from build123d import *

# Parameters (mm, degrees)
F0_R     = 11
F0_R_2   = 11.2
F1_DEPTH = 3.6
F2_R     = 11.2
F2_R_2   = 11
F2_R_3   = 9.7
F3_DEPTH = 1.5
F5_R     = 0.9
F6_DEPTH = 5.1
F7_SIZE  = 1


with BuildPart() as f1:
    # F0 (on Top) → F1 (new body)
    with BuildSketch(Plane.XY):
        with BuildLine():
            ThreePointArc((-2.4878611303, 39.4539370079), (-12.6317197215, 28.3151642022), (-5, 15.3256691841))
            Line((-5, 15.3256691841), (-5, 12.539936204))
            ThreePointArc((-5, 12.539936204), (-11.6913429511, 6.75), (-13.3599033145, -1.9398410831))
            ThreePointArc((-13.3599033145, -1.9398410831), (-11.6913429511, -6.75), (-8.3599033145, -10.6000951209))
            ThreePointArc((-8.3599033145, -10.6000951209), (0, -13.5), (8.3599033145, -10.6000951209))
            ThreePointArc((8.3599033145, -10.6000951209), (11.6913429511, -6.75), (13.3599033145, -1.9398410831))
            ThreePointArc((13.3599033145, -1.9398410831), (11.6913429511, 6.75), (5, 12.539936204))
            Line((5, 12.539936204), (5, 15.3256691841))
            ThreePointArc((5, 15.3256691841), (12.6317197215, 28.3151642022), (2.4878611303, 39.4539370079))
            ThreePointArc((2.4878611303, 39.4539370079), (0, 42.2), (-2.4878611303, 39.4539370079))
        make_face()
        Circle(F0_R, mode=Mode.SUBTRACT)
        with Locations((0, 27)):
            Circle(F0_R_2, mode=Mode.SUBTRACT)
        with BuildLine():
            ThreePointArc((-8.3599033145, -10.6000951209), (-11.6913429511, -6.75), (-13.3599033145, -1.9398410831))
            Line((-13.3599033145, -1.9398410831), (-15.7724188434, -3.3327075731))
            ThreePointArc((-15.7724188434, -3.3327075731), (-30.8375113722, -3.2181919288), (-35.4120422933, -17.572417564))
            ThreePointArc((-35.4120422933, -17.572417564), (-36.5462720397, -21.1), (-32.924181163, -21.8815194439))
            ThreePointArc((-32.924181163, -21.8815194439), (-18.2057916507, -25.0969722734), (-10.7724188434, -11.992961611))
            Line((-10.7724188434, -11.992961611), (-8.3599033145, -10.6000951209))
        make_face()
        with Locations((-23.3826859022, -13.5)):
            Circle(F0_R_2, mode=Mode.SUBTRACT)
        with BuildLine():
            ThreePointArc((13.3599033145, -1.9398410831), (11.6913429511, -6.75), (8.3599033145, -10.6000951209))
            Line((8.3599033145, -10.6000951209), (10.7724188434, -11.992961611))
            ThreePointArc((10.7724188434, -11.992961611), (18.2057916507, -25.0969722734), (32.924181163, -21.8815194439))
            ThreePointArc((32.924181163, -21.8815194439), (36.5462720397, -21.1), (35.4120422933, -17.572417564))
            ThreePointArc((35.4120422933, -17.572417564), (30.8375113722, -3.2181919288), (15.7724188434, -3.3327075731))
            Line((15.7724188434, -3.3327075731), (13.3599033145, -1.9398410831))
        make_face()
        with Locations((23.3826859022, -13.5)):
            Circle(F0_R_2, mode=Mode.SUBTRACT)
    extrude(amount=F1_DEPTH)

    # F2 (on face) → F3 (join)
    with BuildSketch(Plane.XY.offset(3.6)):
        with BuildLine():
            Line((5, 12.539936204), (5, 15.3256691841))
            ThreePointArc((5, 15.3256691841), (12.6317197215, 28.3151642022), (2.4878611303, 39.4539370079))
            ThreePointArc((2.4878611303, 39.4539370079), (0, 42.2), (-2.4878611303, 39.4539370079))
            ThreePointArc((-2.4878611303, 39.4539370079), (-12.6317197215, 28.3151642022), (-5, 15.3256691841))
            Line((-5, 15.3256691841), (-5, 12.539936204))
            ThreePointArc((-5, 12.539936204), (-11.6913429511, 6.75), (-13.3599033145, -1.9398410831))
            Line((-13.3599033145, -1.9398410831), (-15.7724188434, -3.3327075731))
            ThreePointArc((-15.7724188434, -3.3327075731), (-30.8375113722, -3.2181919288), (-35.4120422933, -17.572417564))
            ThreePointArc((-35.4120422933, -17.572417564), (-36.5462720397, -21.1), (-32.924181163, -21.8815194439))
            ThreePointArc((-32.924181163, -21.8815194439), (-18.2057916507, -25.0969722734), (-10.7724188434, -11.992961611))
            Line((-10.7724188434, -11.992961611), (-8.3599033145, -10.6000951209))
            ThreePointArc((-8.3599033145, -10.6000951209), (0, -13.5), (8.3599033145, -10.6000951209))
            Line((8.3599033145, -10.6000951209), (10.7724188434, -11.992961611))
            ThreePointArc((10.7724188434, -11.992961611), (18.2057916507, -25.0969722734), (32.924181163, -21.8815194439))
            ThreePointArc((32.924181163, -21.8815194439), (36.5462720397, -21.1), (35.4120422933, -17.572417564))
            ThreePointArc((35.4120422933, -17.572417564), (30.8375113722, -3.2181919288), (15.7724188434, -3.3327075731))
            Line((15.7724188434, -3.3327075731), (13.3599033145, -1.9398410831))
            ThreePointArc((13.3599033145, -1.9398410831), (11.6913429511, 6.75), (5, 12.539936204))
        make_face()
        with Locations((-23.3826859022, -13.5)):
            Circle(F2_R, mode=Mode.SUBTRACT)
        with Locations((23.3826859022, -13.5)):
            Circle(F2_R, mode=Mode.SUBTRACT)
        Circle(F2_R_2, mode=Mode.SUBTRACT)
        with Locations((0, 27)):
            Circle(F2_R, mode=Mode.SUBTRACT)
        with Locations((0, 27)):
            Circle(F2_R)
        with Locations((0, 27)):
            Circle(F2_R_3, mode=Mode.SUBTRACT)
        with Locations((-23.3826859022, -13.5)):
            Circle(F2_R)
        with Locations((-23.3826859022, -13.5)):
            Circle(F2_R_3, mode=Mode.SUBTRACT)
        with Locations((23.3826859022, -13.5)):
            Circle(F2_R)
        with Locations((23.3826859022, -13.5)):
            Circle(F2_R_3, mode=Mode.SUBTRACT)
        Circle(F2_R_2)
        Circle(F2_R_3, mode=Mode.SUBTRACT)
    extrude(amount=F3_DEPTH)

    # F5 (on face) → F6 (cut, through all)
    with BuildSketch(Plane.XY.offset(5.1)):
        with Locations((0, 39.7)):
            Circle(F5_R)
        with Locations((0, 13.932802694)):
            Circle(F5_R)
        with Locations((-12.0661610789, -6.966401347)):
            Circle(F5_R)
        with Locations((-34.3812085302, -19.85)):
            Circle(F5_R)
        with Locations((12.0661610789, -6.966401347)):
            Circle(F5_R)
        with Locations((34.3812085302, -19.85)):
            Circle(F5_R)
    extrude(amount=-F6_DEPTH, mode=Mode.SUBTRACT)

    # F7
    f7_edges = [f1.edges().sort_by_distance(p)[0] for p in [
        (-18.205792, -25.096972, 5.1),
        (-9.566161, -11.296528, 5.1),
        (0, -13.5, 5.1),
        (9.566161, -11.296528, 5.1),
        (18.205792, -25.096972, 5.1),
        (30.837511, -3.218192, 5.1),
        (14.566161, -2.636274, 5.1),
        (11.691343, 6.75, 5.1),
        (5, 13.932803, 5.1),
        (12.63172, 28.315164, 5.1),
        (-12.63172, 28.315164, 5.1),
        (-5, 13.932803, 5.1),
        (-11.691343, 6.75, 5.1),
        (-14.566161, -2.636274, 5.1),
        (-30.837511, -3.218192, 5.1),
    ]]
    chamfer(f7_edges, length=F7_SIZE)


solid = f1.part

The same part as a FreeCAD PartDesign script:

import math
import FreeCAD as App
import Part
import Sketcher
from FreeCAD import Vector
Q = App.Units.Quantity


def edges_at(feature, points):
    """Names of the edges that pass closest to the given points."""
    edges = feature.Shape.Edges
    near = lambda p: min(range(len(edges)), key=lambda i: edges[i].distToShape(Part.Vertex(*p))[0])
    return sorted({f"Edge{near(p) + 1}" for p in points})

doc = App.newDocument("Part")
body = doc.addObject("PartDesign::Body", "Body")

# Sketch on XY plane
sketch1 = doc.addObject("Sketcher::SketchObject", "Sketch")
body.addObject(sketch1)
sketch1.AttachmentSupport = (doc.XY_Plane, [""])
sketch1.MapMode = "FlatFace"
sketch1.addGeometry([
    Part.ArcOfCircle(Part.Circle(Vector(0, 27, 0), Vector(0, 0, 1), 12.7), math.radians(101), math.radians(247)),  # 0
    Part.LineSegment(Vector(-5, 15.3, 0), Vector(-5, 12.5, 0)),  # 1
    Part.ArcOfCircle(Part.Circle(Vector(0, 0, 0), Vector(0, 0, 1), 13.5), math.radians(112), math.radians(188)),  # 2
    Part.LineSegment(Vector(-13.4, -1.9, 0), Vector(-15.8, -3.3, 0)),  # 3
    Part.ArcOfCircle(Part.Circle(Vector(-23.4, -13.5, 0), Vector(0, 0, 1), 12.7), math.radians(53), math.radians(199)),  # 4
    Part.ArcOfCircle(Part.Circle(Vector(-34.4, -19.9, 0), Vector(0, 0, 1), 2.5), math.radians(114), math.radians(306)),  # 5
    Part.ArcOfCircle(Part.Circle(Vector(-23.4, -13.5, 0), Vector(0, 0, 1), 12.7), math.radians(-139), math.radians(7)),  # 6
    Part.LineSegment(Vector(-10.8, -12, 0), Vector(-8.4, -10.6, 0)),  # 7
    Part.ArcOfCircle(Part.Circle(Vector(0, 0, 0), Vector(0, 0, 1), 13.5), math.radians(-128), math.radians(-52)),  # 8
    Part.LineSegment(Vector(8.4, -10.6, 0), Vector(10.8, -12, 0)),  # 9
    Part.ArcOfCircle(Part.Circle(Vector(23.4, -13.5, 0), Vector(0, 0, 1), 12.7), math.radians(173), math.radians(319)),  # 10
    Part.ArcOfCircle(Part.Circle(Vector(34.4, -19.9, 0), Vector(0, 0, 1), 2.5), math.radians(-126), math.radians(66)),  # 11
    Part.ArcOfCircle(Part.Circle(Vector(23.4, -13.5, 0), Vector(0, 0, 1), 12.7), math.radians(-19), math.radians(127)),  # 12
    Part.LineSegment(Vector(15.8, -3.3, 0), Vector(13.4, -1.9, 0)),  # 13
    Part.ArcOfCircle(Part.Circle(Vector(0, 0, 0), Vector(0, 0, 1), 13.5), math.radians(-8), math.radians(68)),  # 14
    Part.LineSegment(Vector(5, 12.5, 0), Vector(5, 15.3, 0)),  # 15
    Part.ArcOfCircle(Part.Circle(Vector(0, 27, 0), Vector(0, 0, 1), 12.7), math.radians(-67), math.radians(79)),  # 16
    Part.ArcOfCircle(Part.Circle(Vector(0, 39.7, 0), Vector(0, 0, 1), 2.5), math.radians(-6), math.radians(186)),  # 17
    Part.Circle(Vector(-23.4, -13.5, 0), Vector(0, 0, 1), 11.2),  # 18
    Part.Circle(Vector(23.4, -13.5, 0), Vector(0, 0, 1), 11.2),  # 19
    Part.Circle(Vector(0, 0, 0), Vector(0, 0, 1), 11),  # 20
    Part.Circle(Vector(0, 27, 0), Vector(0, 0, 1), 11.2),  # 21
], False)
sketch1.addConstraint([
    Sketcher.Constraint("Coincident", 0, 2, 1, 1),
    Sketcher.Constraint("Coincident", 1, 2, 2, 1),
    Sketcher.Constraint("Coincident", 2, 2, 3, 1),
    Sketcher.Constraint("Coincident", 3, 2, 4, 1),
    Sketcher.Constraint("Coincident", 4, 2, 5, 1),
    Sketcher.Constraint("Coincident", 5, 2, 6, 1),
    Sketcher.Constraint("Coincident", 6, 2, 7, 1),
    Sketcher.Constraint("Coincident", 7, 2, 8, 1),
    Sketcher.Constraint("Coincident", 8, 2, 9, 1),
    Sketcher.Constraint("Coincident", 9, 2, 10, 1),
    Sketcher.Constraint("Coincident", 10, 2, 11, 1),
    Sketcher.Constraint("Coincident", 11, 2, 12, 1),
    Sketcher.Constraint("Coincident", 12, 2, 13, 1),
    Sketcher.Constraint("Coincident", 13, 2, 14, 1),
    Sketcher.Constraint("Coincident", 14, 2, 15, 1),
    Sketcher.Constraint("Coincident", 15, 2, 16, 1),
    Sketcher.Constraint("Coincident", 16, 2, 17, 1),
    Sketcher.Constraint("Coincident", 17, 2, 0, 1),
    Sketcher.Constraint("Vertical", 1),
    Sketcher.Constraint("Vertical", 15),
    Sketcher.Constraint("Coincident", 2, 3, -1, 1),
    Sketcher.Constraint("Coincident", 8, 3, -1, 1),
    Sketcher.Constraint("Coincident", 14, 3, -1, 1),
    Sketcher.Constraint("Coincident", 20, 3, -1, 1),
    Sketcher.Constraint("Coincident", 6, 3, 4, 3),
    Sketcher.Constraint("Coincident", 12, 3, 10, 3),
    Sketcher.Constraint("Coincident", 16, 3, 0, 3),
    Sketcher.Constraint("Coincident", 18, 3, 4, 3),
    Sketcher.Constraint("Coincident", 19, 3, 10, 3),
    Sketcher.Constraint("Coincident", 21, 3, 0, 3),
    Sketcher.Constraint("Equal", 0, 4),
    Sketcher.Constraint("Equal", 4, 6),
    Sketcher.Constraint("Equal", 2, 8),
    Sketcher.Constraint("Equal", 6, 10),
    Sketcher.Constraint("Equal", 5, 11),
    Sketcher.Constraint("Equal", 10, 12),
    Sketcher.Constraint("Equal", 8, 14),
    Sketcher.Constraint("Equal", 12, 16),
    Sketcher.Constraint("Equal", 11, 17),
    Sketcher.Constraint("Equal", 18, 19),
    Sketcher.Constraint("Equal", 19, 21),
    Sketcher.Constraint("Symmetric", 4, 3, 10, 3, -2),
    Sketcher.Constraint("Symmetric", 5, 3, 11, 3, -2),
    Sketcher.Constraint("Symmetric", 0, 2, 15, 2, -2),
    Sketcher.Constraint("PointOnObject", 17, 3, -2),
    Sketcher.Constraint("Parallel", 3, 7),
    Sketcher.Constraint("Parallel", 9, 13),
    Sketcher.Constraint("Horizontal", 7, 2, 8, 2),
    Sketcher.Constraint("Horizontal", 6, 2, 9, 2),
    Sketcher.Constraint("Horizontal", 3, 2, 12, 2),
    Sketcher.Constraint("Equal", 3, 7),
    Sketcher.Constraint("Diameter", 20, Q("22 mm")),
    Sketcher.Constraint("Diameter", 18, Q("22.4 mm")),
    Sketcher.Constraint("Radius", 0, Q("12.7 mm")),
    Sketcher.Constraint("Radius", 2, Q("13.5 mm")),
    Sketcher.Constraint("Radius", 5, Q("2.5 mm")),
    Sketcher.Constraint("Angle", 3, Q("-150 deg")),
    Sketcher.Constraint("DistanceY", -1, 1, 0, 3, Q("27 mm")),
    Sketcher.Constraint("DistanceX", 0, 2, -1, 1, Q("5 mm")),
    Sketcher.Constraint("DistanceX", 3, 2, 6, 2, Q("5 mm")),
    Sketcher.Constraint("DistanceY", 4, 3, -1, 1, Q("13.5 mm")),
    Sketcher.Constraint("DistanceY", -1, 1, 17, 3, Q("39.7 mm")),
    Sketcher.Constraint("DistanceY", 5, 3, -1, 1, Q("19.85 mm")),
    Sketcher.Constraint("DistanceY", 5, 2, 4, 2, Q("4.309102 mm")),
    Sketcher.Constraint("DistanceX", 5, 3, -1, 1, Q("34.381209 mm")),
])
pad1 = doc.addObject("PartDesign::Pad", "Pad")
body.addObject(pad1)
pad1.Profile = sketch1
pad1.Length = 3.6

# Sketch on XY plane
sketch2 = doc.addObject("Sketcher::SketchObject", "Sketch001")
body.addObject(sketch2)
sketch2.AttachmentSupport = (doc.XY_Plane, [""])
sketch2.MapMode = "FlatFace"
sketch2.AttachmentOffset = App.Placement(Vector(0, 0, 3.6), App.Rotation())
sketch2.addGeometry([
    Part.LineSegment(Vector(5, 12.5, 0), Vector(5, 15.3, 0)),  # 0
    Part.ArcOfCircle(Part.Circle(Vector(0, 27, 0), Vector(0, 0, 1), 12.7), math.radians(-67), math.radians(79)),  # 1
    Part.ArcOfCircle(Part.Circle(Vector(0, 39.7, 0), Vector(0, 0, 1), 2.5), math.radians(-6), math.radians(186)),  # 2
    Part.ArcOfCircle(Part.Circle(Vector(0, 27, 0), Vector(0, 0, 1), 12.7), math.radians(101), math.radians(247)),  # 3
    Part.LineSegment(Vector(-5, 15.3, 0), Vector(-5, 12.5, 0)),  # 4
    Part.ArcOfCircle(Part.Circle(Vector(0, 0, 0), Vector(0, 0, 1), 13.5), math.radians(112), math.radians(188)),  # 5
    Part.LineSegment(Vector(-13.4, -1.9, 0), Vector(-15.8, -3.3, 0)),  # 6
    Part.ArcOfCircle(Part.Circle(Vector(-23.4, -13.5, 0), Vector(0, 0, 1), 12.7), math.radians(53), math.radians(199)),  # 7
    Part.ArcOfCircle(Part.Circle(Vector(-34.4, -19.9, 0), Vector(0, 0, 1), 2.5), math.radians(114), math.radians(306)),  # 8
    Part.ArcOfCircle(Part.Circle(Vector(-23.4, -13.5, 0), Vector(0, 0, 1), 12.7), math.radians(-139), math.radians(7)),  # 9
    Part.LineSegment(Vector(-10.8, -12, 0), Vector(-8.4, -10.6, 0)),  # 10
    Part.ArcOfCircle(Part.Circle(Vector(0, 0, 0), Vector(0, 0, 1), 13.5), math.radians(-128), math.radians(-52)),  # 11
    Part.LineSegment(Vector(8.4, -10.6, 0), Vector(10.8, -12, 0)),  # 12
    Part.ArcOfCircle(Part.Circle(Vector(23.4, -13.5, 0), Vector(0, 0, 1), 12.7), math.radians(173), math.radians(319)),  # 13
    Part.ArcOfCircle(Part.Circle(Vector(34.4, -19.9, 0), Vector(0, 0, 1), 2.5), math.radians(-126), math.radians(66)),  # 14
    Part.ArcOfCircle(Part.Circle(Vector(23.4, -13.5, 0), Vector(0, 0, 1), 12.7), math.radians(-19), math.radians(127)),  # 15
    Part.LineSegment(Vector(15.8, -3.3, 0), Vector(13.4, -1.9, 0)),  # 16
    Part.ArcOfCircle(Part.Circle(Vector(0, 0, 0), Vector(0, 0, 1), 13.5), math.radians(-8), math.radians(68)),  # 17
    Part.Circle(Vector(-23.4, -13.5, 0), Vector(0, 0, 1), 9.7),  # 18
    Part.Circle(Vector(23.4, -13.5, 0), Vector(0, 0, 1), 9.7),  # 19
    Part.Circle(Vector(0, 0, 0), Vector(0, 0, 1), 9.7),  # 20
    Part.Circle(Vector(0, 27, 0), Vector(0, 0, 1), 9.7),  # 21
], False)
sketch2.addConstraint([
    Sketcher.Constraint("Coincident", 0, 2, 1, 1),
    Sketcher.Constraint("Coincident", 1, 2, 2, 1),
    Sketcher.Constraint("Coincident", 2, 2, 3, 1),
    Sketcher.Constraint("Coincident", 3, 2, 4, 1),
    Sketcher.Constraint("Coincident", 4, 2, 5, 1),
    Sketcher.Constraint("Coincident", 5, 2, 6, 1),
    Sketcher.Constraint("Coincident", 6, 2, 7, 1),
    Sketcher.Constraint("Coincident", 7, 2, 8, 1),
    Sketcher.Constraint("Coincident", 8, 2, 9, 1),
    Sketcher.Constraint("Coincident", 9, 2, 10, 1),
    Sketcher.Constraint("Coincident", 10, 2, 11, 1),
    Sketcher.Constraint("Coincident", 11, 2, 12, 1),
    Sketcher.Constraint("Coincident", 12, 2, 13, 1),
    Sketcher.Constraint("Coincident", 13, 2, 14, 1),
    Sketcher.Constraint("Coincident", 14, 2, 15, 1),
    Sketcher.Constraint("Coincident", 15, 2, 16, 1),
    Sketcher.Constraint("Coincident", 16, 2, 17, 1),
    Sketcher.Constraint("Coincident", 17, 2, 0, 1),
    Sketcher.Constraint("Vertical", 0),
    Sketcher.Constraint("Vertical", 4),
    Sketcher.Constraint("Coincident", 5, 3, -1, 1),
    Sketcher.Constraint("Coincident", 11, 3, -1, 1),
    Sketcher.Constraint("Coincident", 17, 3, -1, 1),
    Sketcher.Constraint("Coincident", 20, 3, -1, 1),
    Sketcher.Constraint("Coincident", 3, 3, 1, 3),
    Sketcher.Constraint("Coincident", 9, 3, 7, 3),
    Sketcher.Constraint("Coincident", 15, 3, 13, 3),
    Sketcher.Constraint("Coincident", 18, 3, 7, 3),
    Sketcher.Constraint("Coincident", 19, 3, 13, 3),
    Sketcher.Constraint("Coincident", 21, 3, 1, 3),
    Sketcher.Constraint("Equal", 1, 3),
    Sketcher.Constraint("Equal", 3, 7),
    Sketcher.Constraint("Equal", 2, 8),
    Sketcher.Constraint("Equal", 7, 9),
    Sketcher.Constraint("Equal", 5, 11),
    Sketcher.Constraint("Equal", 9, 13),
    Sketcher.Constraint("Equal", 8, 14),
    Sketcher.Constraint("Equal", 13, 15),
    Sketcher.Constraint("Equal", 11, 17),
    Sketcher.Constraint("Equal", 18, 19),
    Sketcher.Constraint("Equal", 19, 20),
    Sketcher.Constraint("Equal", 20, 21),
    Sketcher.Constraint("Symmetric", 7, 3, 13, 3, -2),
    Sketcher.Constraint("Symmetric", 8, 3, 14, 3, -2),
    Sketcher.Constraint("Symmetric", 1, 2, 2, 2, -2),
    Sketcher.Constraint("Parallel", 6, 10),
    Sketcher.Constraint("Parallel", 12, 16),
    Sketcher.Constraint("Horizontal", 0, 2, 3, 2),
    Sketcher.Constraint("Horizontal", 10, 2, 11, 2),
    Sketcher.Constraint("Horizontal", 9, 2, 12, 2),
    Sketcher.Constraint("Horizontal", 6, 2, 15, 2),
    Sketcher.Constraint("Equal", 6, 10),
    Sketcher.Constraint("Diameter", 18, Q("19.4 mm")),
    Sketcher.Constraint("Radius", 1, Q("12.7 mm")),
    Sketcher.Constraint("Radius", 2, Q("2.5 mm")),
    Sketcher.Constraint("Radius", 5, Q("13.5 mm")),
    Sketcher.Constraint("Angle", 6, Q("-150 deg")),
    Sketcher.Constraint("DistanceY", -1, 1, 1, 3, Q("27 mm")),
    Sketcher.Constraint("DistanceX", -1, 1, 0, 2, Q("5 mm")),
    Sketcher.Constraint("DistanceX", 6, 2, 9, 2, Q("5 mm")),
    Sketcher.Constraint("DistanceY", -1, 1, 2, 3, Q("39.7 mm")),
    Sketcher.Constraint("DistanceY", 7, 3, -1, 1, Q("13.5 mm")),
    Sketcher.Constraint("DistanceY", 8, 3, -1, 1, Q("19.85 mm")),
    Sketcher.Constraint("DistanceY", 8, 2, 7, 2, Q("4.309102 mm")),
    Sketcher.Constraint("DistanceX", 8, 3, -1, 1, Q("34.381209 mm")),
])
pad2 = doc.addObject("PartDesign::Pad", "Pad001")
body.addObject(pad2)
pad2.Profile = sketch2
pad2.Length = 1.5

# Sketch on XY plane
sketch3 = doc.addObject("Sketcher::SketchObject", "Sketch002")
body.addObject(sketch3)
sketch3.AttachmentSupport = (doc.XY_Plane, [""])
sketch3.MapMode = "FlatFace"
sketch3.AttachmentOffset = App.Placement(Vector(0, 0, 5.1), App.Rotation())
sketch3.addGeometry([
    Part.Circle(Vector(0, 39.7, 0), Vector(0, 0, 1), 0.9),  # 0
    Part.Circle(Vector(0, 13.9, 0), Vector(0, 0, 1), 0.9),  # 1
    Part.Circle(Vector(-12.1, -7, 0), Vector(0, 0, 1), 0.9),  # 2
    Part.Circle(Vector(-34.4, -19.9, 0), Vector(0, 0, 1), 0.9),  # 3
    Part.Circle(Vector(12.1, -7, 0), Vector(0, 0, 1), 0.9),  # 4
    Part.Circle(Vector(34.4, -19.9, 0), Vector(0, 0, 1), 0.9),  # 5
], False)
sketch3.addConstraint([
    Sketcher.Constraint("Equal", 0, 1),
    Sketcher.Constraint("Equal", 1, 2),
    Sketcher.Constraint("Equal", 2, 3),
    Sketcher.Constraint("Equal", 3, 4),
    Sketcher.Constraint("Equal", 4, 5),
    Sketcher.Constraint("Symmetric", 2, 3, 4, 3, -2),
    Sketcher.Constraint("Symmetric", 3, 3, 5, 3, -2),
    Sketcher.Constraint("PointOnObject", 0, 3, -2),
    Sketcher.Constraint("PointOnObject", 1, 3, -2),
    Sketcher.Constraint("Diameter", 0, Q("1.8 mm")),
    Sketcher.Constraint("DistanceY", -1, 1, 0, 3, Q("39.7 mm")),
    Sketcher.Constraint("DistanceY", 3, 3, -1, 1, Q("19.85 mm")),
    Sketcher.Constraint("DistanceY", 2, 3, -1, 1, Q("6.966401 mm")),
    Sketcher.Constraint("DistanceX", 2, 3, -1, 1, Q("12.066161 mm")),
    Sketcher.Constraint("DistanceX", 3, 3, -1, 1, Q("34.381209 mm")),
    Sketcher.Constraint("DistanceY", -1, 1, 1, 3, Q("13.932803 mm")),
])
pocket1 = doc.addObject("PartDesign::Pocket", "Pocket")
body.addObject(pocket1)
pocket1.Profile = sketch3
pocket1.Type = "ThroughAll"
doc.recompute()

chamfer = doc.addObject("PartDesign::Chamfer", "Chamfer")
body.addObject(chamfer)
chamfer.Base = (pocket1, edges_at(pocket1, [
    (-18.206, -25.097, 5.1),
    (-9.566, -11.297, 5.1),
    (0, -13.5, 5.1),
    (9.566, -11.297, 5.1),
    (18.206, -25.097, 5.1),
    (30.838, -3.218, 5.1),
    (14.566, -2.636, 5.1),
    (11.691, 6.75, 5.1),
    (5, 13.933, 5.1),
    (12.632, 28.315, 5.1),
    (-12.632, 28.315, 5.1),
    (-5, 13.933, 5.1),
    (-11.691, 6.75, 5.1),
    (-14.566, -2.636, 5.1),
    (-30.838, -3.218, 5.1),
]))
chamfer.Size = 1

doc.recompute()
